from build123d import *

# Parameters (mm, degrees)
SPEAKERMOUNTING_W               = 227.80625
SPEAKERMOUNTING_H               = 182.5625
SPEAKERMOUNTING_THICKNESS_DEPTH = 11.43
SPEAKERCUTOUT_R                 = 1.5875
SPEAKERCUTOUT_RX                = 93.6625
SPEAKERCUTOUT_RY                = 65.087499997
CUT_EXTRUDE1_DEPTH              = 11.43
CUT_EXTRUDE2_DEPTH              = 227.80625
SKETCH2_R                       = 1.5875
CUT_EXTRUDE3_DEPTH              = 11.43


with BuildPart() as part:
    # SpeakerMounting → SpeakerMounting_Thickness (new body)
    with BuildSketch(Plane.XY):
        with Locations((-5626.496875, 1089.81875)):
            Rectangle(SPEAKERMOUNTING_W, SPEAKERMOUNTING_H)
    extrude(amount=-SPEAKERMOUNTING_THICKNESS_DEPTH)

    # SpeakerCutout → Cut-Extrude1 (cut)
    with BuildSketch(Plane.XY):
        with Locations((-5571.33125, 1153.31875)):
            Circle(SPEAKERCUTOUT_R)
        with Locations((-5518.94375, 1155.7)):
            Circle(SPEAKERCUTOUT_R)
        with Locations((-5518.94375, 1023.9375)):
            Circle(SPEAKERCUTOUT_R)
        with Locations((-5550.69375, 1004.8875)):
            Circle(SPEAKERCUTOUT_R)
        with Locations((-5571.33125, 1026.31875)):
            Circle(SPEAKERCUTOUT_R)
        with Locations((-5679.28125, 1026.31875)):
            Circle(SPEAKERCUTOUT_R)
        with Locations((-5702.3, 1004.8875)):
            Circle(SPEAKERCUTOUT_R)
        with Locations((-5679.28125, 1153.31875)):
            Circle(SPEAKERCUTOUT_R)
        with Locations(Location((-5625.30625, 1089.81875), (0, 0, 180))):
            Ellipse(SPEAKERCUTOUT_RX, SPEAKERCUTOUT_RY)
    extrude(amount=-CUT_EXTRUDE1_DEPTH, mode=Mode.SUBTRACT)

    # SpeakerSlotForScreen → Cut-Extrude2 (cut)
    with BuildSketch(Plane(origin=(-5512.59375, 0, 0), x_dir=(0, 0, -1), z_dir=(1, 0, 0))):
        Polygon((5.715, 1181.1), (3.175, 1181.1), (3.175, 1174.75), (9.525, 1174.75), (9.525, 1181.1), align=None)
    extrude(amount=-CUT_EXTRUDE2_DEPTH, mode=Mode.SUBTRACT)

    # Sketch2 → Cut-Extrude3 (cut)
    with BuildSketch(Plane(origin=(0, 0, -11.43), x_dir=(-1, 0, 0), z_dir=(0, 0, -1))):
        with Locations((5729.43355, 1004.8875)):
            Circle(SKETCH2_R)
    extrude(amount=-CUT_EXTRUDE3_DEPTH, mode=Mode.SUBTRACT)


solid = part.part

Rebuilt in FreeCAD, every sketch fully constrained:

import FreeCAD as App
import Part
import Sketcher

V = App.Vector
Q = App.Units.Quantity

doc = App.newDocument("Part")
body = doc.addObject("PartDesign::Body", "Body")

# Sketch on XY plane
sketch1 = doc.addObject("Sketcher::SketchObject", "Sketch")
body.addObject(sketch1)
sketch1.AttachmentSupport = (doc.XY_Plane, [""])
sketch1.MapMode = "FlatFace"
sketch1.addGeometry([
    Part.LineSegment(V(-5740, 1181, 0), V(-5740, 999, 0)),
    Part.LineSegment(V(-5740, 999, 0), V(-5513, 999, 0)),
    Part.LineSegment(V(-5513, 999, 0), V(-5513, 1181, 0)),
    Part.LineSegment(V(-5513, 1181, 0), V(-5740, 1181, 0)),
], False)
sketch1.addConstraint([
    Sketcher.Constraint("Coincident", 0, 2, 1, 1),
    Sketcher.Constraint("Coincident", 1, 2, 2, 1),
    Sketcher.Constraint("Coincident", 2, 2, 3, 1),
    Sketcher.Constraint("Coincident", 3, 2, 0, 1),
    Sketcher.Constraint("Vertical", 0),
    Sketcher.Constraint("Horizontal", 1),
    Sketcher.Constraint("Vertical", 2),
    Sketcher.Constraint("Horizontal", 3),
    Sketcher.Constraint("DistanceX", 0, 2, -1, 1, Q("226 in")),
    Sketcher.Constraint("DistanceY", -1, 1, 2, 2, Q("46.5 in")),
    Sketcher.Constraint("DistanceX", 1, 1, 1, 2, Q("8.96875 in")),
    Sketcher.Constraint("DistanceY", 0, 2, 0, 1, Q("7.1875 in")),
])
pad1 = doc.addObject("PartDesign::Pad", "Pad")
body.addObject(pad1)
pad1.Profile = sketch1
pad1.Length = Q("0.45 in")
pad1.Reversed = True

# Sketch on XY plane
sketch2 = doc.addObject("Sketcher::SketchObject", "Sketch001")
body.addObject(sketch2)
sketch2.AttachmentSupport = (doc.XY_Plane, [""])
sketch2.MapMode = "FlatFace"
sketch2.addGeometry([
    Part.Circle(V(-5571.33125, 1153.31875, 0), V(0, 0, 1), 1.5875),  # 0
    Part.Circle(V(-5518.94375, 1155.7, 0), V(0, 0, 1), 1.5875),  # 1
    Part.Circle(V(-5518.94375, 1023.9375, 0), V(0, 0, 1), 1.5875),  # 2
    Part.Circle(V(-5550.69375, 1004.8875, 0), V(0, 0, 1), 1.5875),  # 3
    Part.Circle(V(-5571.33125, 1026.31875, 0), V(0, 0, 1), 1.5875),  # 4
    Part.Circle(V(-5679.28125, 1026.31875, 0), V(0, 0, 1), 1.5875),  # 5
    Part.Circle(V(-5702.3, 1004.8875, 0), V(0, 0, 1), 1.5875),  # 6
    Part.Circle(V(-5679.28125, 1153.31875, 0), V(0, 0, 1), 1.5875),  # 7
    Part.Ellipse(V(-5718.96875, 1089.81875, 0), V(-5625.30625, 1024.73125, 0), V(-5625.30625, 1089.81875, 0)),  # 8
], False)
sketch2.addConstraint([
    Sketcher.Constraint("Block", 8),
    Sketcher.Constraint("Equal", 0, 1),
    Sketcher.Constraint("Equal", 1, 2),
    Sketcher.Constraint("Equal", 2, 3),
    Sketcher.Constraint("Equal", 3, 4),
    Sketcher.Constraint("Equal", 4, 5),
    Sketcher.Constraint("Equal", 5, 6),
    Sketcher.Constraint("Equal", 6, 7),
    Sketcher.Constraint("Horizontal", 4, 3, 5, 3),
    Sketcher.Constraint("Horizontal", 3, 3, 6, 3),
    Sketcher.Constraint("Horizontal", 0, 3, 7, 3),
    Sketcher.Constraint("Vertical", 1, 3, 2, 3),
    Sketcher.Constraint("Vertical", 0, 3, 4, 3),
    Sketcher.Constraint("Vertical", 5, 3, 7, 3),
    Sketcher.Constraint("Diameter", 0, Q("0.125 in")),
    Sketcher.Constraint("DistanceY", 4, 3, 0, 3, Q("5 in")),
    Sketcher.Constraint("DistanceY", -1, 1, 1, 3, Q("45.5 in")),
    Sketcher.Constraint("DistanceX", 6, 3, -1, 1, Q("224.5 in")),
    Sketcher.Constraint("DistanceX", 3, 3, 2, 3, Q("1.25 in")),
    Sketcher.Constraint("DistanceY", 3, 3, 2, 3, Q("0.75 in")),
    Sketcher.Constraint("DistanceX", 5, 3, 4, 3, Q("4.25 in")),
    Sketcher.Constraint("DistanceX", 0, 3, -1, 1, Q("219.34375 in")),
    Sketcher.Constraint("DistanceY", -1, 1, 0, 3, Q("45.40625 in")),
    Sketcher.Constraint("DistanceX", 1, 3, -1, 1, Q("217.28125 in")),
    Sketcher.Constraint("DistanceY", -1, 1, 2, 3, Q("40.3125 in")),
])
pocket1 = doc.addObject("PartDesign::Pocket", "Pocket")
body.addObject(pocket1)
pocket1.Profile = sketch2
pocket1.Length = Q("0.45 in")

# Sketch on YZ plane
sketch3 = doc.addObject("Sketcher::SketchObject", "Sketch002")
body.addObject(sketch3)
sketch3.AttachmentSupport = (doc.YZ_Plane, [""])
sketch3.MapMode = "FlatFace"
sketch3.AttachmentOffset = App.Placement(V(0, 0, -217.03125 * 25.4), App.Rotation())
sketch3.addGeometry([
    Part.LineSegment(V(1181, -3, 0), V(1175, -3, 0)),
    Part.LineSegment(V(1175, -3, 0), V(1175, -10, 0)),
    Part.LineSegment(V(1175, -10, 0), V(1181, -10, 0)),
    Part.LineSegment(V(1181, -10, 0), V(1181, -3, 0)),
], False)
sketch3.addConstraint([
    Sketcher.Constraint("Coincident", 0, 2, 1, 1),
    Sketcher.Constraint("Coincident", 1, 2, 2, 1),
    Sketcher.Constraint("Coincident", 2, 2, 3, 1),
    Sketcher.Constraint("Coincident", 3, 2, 0, 1),
    Sketcher.Constraint("Horizontal", 0),
    Sketcher.Constraint("Vertical", 1),
    Sketcher.Constraint("Horizontal", 2),
    Sketcher.Constraint("Vertical", 3),
    Sketcher.Constraint("Equal", 2, 1),
    Sketcher.Constraint("DistanceX", 0, 2, 0, 1, Q("0.25 in")),
    Sketcher.Constraint("DistanceX", -1, 1, 2, 2, Q("46.5 in")),
    Sketcher.Constraint("DistanceY", 0, 2, -1, 1, Q("0.125 in")),
])
pocket2 = doc.addObject("PartDesign::Pocket", "Pocket001")
body.addObject(pocket2)
pocket2.Profile = sketch3
pocket2.Length = Q("8.96875 in")

# Sketch on XY plane
sketch4 = doc.addObject("Sketcher::SketchObject", "Sketch003")
body.addObject(sketch4)
sketch4.AttachmentSupport = (doc.XY_Plane, [""])
sketch4.MapMode = "FlatFace"
sketch4.AttachmentOffset = App.Placement(V(0, 0, -0.45 * 25.4), App.Rotation())
sketch4.addGeometry(Part.Circle(V(-5729.4, 1004.9, 0), V(0, 0, 1), 1.6), False)
sketch4.addConstraint([
    Sketcher.Constraint("Diameter", 0, Q("0.125 in")),
    Sketcher.Constraint("DistanceY", -1, 1, 0, 3, Q("39.5625 in")),
    Sketcher.Constraint("DistanceX", 0, 3, -1, 1, Q("5729.43355 mm")),
])
pocket3 = doc.addObject("PartDesign::Pocket", "Pocket002")
body.addObject(pocket3)
pocket3.Profile = sketch4
pocket3.Length = Q("0.45 in")
pocket3.Reversed = True

doc.recompute()
